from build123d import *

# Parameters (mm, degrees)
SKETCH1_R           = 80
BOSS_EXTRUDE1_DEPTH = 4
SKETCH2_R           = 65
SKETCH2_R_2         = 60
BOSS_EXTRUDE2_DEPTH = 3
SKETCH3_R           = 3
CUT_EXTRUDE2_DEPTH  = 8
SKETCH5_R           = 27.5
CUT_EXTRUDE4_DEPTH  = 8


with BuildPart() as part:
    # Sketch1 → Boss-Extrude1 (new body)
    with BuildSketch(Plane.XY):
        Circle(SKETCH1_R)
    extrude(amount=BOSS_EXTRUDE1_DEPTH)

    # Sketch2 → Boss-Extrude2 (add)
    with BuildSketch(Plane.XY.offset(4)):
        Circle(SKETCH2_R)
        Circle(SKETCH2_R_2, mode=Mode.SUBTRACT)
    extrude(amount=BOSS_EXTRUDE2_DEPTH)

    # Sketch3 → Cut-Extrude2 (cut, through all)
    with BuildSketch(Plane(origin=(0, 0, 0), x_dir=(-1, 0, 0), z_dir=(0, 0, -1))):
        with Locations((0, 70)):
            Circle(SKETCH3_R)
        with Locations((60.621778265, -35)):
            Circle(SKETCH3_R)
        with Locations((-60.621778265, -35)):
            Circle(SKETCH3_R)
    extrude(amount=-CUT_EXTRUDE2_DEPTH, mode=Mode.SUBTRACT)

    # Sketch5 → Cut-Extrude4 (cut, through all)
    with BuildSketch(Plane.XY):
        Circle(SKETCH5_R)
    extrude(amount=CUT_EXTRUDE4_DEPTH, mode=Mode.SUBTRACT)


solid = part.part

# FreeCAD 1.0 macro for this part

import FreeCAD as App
import Part
import Sketcher

V = App.Vector
Q = App.Units.Quantity

doc = App.newDocument("Part")
params = doc.addObject("Spreadsheet::Sheet", "Params")
for row, (alias, value) in enumerate([
    ("sketch1_diameter", "160 mm"),
    ("pad1_length", "4 mm"),
    ("sketch2_diameter", "130 mm"),
    ("sketch2_diameter2", "120 mm"),
    ("pad2_length", "3 mm"),
    ("sketch3_diameter", "6 mm"),
    ("sketch4_diameter", "55 mm"),
], start=1):
    params.set(f"A{row}", alias)
    params.set(f"B{row}", "=" + value)
    params.setAlias(f"B{row}", alias)

body = doc.addObject("PartDesign::Body", "Body")

sketch1 = body.newObject("Sketcher::SketchObject", "Sketch")
sketch1.AttachmentSupport = (doc.getObject("XY_Plane"), [""])
sketch1.MapMode = "FlatFace"
sketch1.addGeometry(Part.Circle(V(0, 0, 0), V(0, 0, 1), 80), False)
sketch1.addConstraint([
    Sketcher.Constraint("Coincident", 0, 3, -1, 1),
    Sketcher.Constraint("Diameter", 0, Q("160 mm")),
])
sketch1.setExpression("Constraints[1]", "Params.sketch1_diameter")
pad1 = body.newObject("PartDesign::Pad", "Pad")
pad1.Profile = sketch1
pad1.setExpression("Length", "Params.pad1_length")

sketch2 = body.newObject("Sketcher::SketchObject", "Sketch001")
sketch2.AttachmentSupport = (doc.getObject("XY_Plane"), [""])
sketch2.MapMode = "FlatFace"
sketch2.AttachmentOffset = App.Placement(V(0, 0, 4), App.Rotation())
sketch2.addGeometry([
    Part.Circle(V(0, 0, 0), V(0, 0, 1), 65),
    Part.Circle(V(0, 0, 0), V(0, 0, 1), 60),
], False)
sketch2.addConstraint([
    Sketcher.Constraint("Coincident", 0, 3, -1, 1),
    Sketcher.Constraint("Coincident", 1, 3, -1, 1),
    Sketcher.Constraint("Diameter", 0, Q("130 mm")),
    Sketcher.Constraint("Diameter", 1, Q("120 mm")),
])
sketch2.setExpression("Constraints[2]", "Params.sketch2_diameter")
sketch2.setExpression("Constraints[3]", "Params.sketch2_diameter2")
pad2 = body.newObject("PartDesign::Pad", "Pad001")
pad2.Profile = sketch2
pad2.setExpression("Length", "Params.pad2_length")

sketch3 = body.newObject("Sketcher::SketchObject", "Sketch002")
sketch3.AttachmentSupport = (doc.getObject("XY_Plane"), [""])
sketch3.MapMode = "FlatFace"
sketch3.addGeometry([
    Part.Circle(V(0, 70, 0), V(0, 0, 1), 3),
    Part.Circle(V(-60.6, -35, 0), V(0, 0, 1), 3),
    Part.Circle(V(60.6, -35, 0), V(0, 0, 1), 3),
], False)
sketch3.addConstraint([
    Sketcher.Constraint("Equal", 0, 1),
    Sketcher.Constraint("Equal", 1, 2),
    Sketcher.Constraint("Symmetric", 1, 3, 2, 3, -2),
    Sketcher.Constraint("PointOnObject", 0, 3, -2),
    Sketcher.Constraint("Diameter", 0, Q("6 mm")),
    Sketcher.Constraint("DistanceY", -1, 1, 0, 3, Q("70 mm")),
    Sketcher.Constraint("DistanceY", 1, 3, -1, 1, Q("35 mm")),
    Sketcher.Constraint("DistanceX", 1, 3, -1, 1, Q("60.621778 mm")),
])
sketch3.setExpression("Constraints[4]", "Params.sketch3_diameter")
pocket1 = body.newObject("PartDesign::Pocket", "Pocket")
pocket1.Profile = sketch3
pocket1.Type = "ThroughAll"
pocket1.Reversed = True

sketch4 = body.newObject("Sketcher::SketchObject", "Sketch003")
sketch4.AttachmentSupport = (doc.getObject("XY_Plane"), [""])
sketch4.MapMode = "FlatFace"
sketch4.addGeometry(Part.Circle(V(0, 0, 0), V(0, 0, 1), 28), False)
sketch4.addConstraint([
    Sketcher.Constraint("Coincident", 0, 3, -1, 1),
    Sketcher.Constraint("Diameter", 0, Q("55 mm")),
])
sketch4.setExpression("Constraints[1]", "Params.sketch4_diameter")
pocket2 = body.newObject("PartDesign::Pocket", "Pocket001")
pocket2.Profile = sketch4
pocket2.Type = "ThroughAll"
pocket2.Reversed = True

doc.recompute()
